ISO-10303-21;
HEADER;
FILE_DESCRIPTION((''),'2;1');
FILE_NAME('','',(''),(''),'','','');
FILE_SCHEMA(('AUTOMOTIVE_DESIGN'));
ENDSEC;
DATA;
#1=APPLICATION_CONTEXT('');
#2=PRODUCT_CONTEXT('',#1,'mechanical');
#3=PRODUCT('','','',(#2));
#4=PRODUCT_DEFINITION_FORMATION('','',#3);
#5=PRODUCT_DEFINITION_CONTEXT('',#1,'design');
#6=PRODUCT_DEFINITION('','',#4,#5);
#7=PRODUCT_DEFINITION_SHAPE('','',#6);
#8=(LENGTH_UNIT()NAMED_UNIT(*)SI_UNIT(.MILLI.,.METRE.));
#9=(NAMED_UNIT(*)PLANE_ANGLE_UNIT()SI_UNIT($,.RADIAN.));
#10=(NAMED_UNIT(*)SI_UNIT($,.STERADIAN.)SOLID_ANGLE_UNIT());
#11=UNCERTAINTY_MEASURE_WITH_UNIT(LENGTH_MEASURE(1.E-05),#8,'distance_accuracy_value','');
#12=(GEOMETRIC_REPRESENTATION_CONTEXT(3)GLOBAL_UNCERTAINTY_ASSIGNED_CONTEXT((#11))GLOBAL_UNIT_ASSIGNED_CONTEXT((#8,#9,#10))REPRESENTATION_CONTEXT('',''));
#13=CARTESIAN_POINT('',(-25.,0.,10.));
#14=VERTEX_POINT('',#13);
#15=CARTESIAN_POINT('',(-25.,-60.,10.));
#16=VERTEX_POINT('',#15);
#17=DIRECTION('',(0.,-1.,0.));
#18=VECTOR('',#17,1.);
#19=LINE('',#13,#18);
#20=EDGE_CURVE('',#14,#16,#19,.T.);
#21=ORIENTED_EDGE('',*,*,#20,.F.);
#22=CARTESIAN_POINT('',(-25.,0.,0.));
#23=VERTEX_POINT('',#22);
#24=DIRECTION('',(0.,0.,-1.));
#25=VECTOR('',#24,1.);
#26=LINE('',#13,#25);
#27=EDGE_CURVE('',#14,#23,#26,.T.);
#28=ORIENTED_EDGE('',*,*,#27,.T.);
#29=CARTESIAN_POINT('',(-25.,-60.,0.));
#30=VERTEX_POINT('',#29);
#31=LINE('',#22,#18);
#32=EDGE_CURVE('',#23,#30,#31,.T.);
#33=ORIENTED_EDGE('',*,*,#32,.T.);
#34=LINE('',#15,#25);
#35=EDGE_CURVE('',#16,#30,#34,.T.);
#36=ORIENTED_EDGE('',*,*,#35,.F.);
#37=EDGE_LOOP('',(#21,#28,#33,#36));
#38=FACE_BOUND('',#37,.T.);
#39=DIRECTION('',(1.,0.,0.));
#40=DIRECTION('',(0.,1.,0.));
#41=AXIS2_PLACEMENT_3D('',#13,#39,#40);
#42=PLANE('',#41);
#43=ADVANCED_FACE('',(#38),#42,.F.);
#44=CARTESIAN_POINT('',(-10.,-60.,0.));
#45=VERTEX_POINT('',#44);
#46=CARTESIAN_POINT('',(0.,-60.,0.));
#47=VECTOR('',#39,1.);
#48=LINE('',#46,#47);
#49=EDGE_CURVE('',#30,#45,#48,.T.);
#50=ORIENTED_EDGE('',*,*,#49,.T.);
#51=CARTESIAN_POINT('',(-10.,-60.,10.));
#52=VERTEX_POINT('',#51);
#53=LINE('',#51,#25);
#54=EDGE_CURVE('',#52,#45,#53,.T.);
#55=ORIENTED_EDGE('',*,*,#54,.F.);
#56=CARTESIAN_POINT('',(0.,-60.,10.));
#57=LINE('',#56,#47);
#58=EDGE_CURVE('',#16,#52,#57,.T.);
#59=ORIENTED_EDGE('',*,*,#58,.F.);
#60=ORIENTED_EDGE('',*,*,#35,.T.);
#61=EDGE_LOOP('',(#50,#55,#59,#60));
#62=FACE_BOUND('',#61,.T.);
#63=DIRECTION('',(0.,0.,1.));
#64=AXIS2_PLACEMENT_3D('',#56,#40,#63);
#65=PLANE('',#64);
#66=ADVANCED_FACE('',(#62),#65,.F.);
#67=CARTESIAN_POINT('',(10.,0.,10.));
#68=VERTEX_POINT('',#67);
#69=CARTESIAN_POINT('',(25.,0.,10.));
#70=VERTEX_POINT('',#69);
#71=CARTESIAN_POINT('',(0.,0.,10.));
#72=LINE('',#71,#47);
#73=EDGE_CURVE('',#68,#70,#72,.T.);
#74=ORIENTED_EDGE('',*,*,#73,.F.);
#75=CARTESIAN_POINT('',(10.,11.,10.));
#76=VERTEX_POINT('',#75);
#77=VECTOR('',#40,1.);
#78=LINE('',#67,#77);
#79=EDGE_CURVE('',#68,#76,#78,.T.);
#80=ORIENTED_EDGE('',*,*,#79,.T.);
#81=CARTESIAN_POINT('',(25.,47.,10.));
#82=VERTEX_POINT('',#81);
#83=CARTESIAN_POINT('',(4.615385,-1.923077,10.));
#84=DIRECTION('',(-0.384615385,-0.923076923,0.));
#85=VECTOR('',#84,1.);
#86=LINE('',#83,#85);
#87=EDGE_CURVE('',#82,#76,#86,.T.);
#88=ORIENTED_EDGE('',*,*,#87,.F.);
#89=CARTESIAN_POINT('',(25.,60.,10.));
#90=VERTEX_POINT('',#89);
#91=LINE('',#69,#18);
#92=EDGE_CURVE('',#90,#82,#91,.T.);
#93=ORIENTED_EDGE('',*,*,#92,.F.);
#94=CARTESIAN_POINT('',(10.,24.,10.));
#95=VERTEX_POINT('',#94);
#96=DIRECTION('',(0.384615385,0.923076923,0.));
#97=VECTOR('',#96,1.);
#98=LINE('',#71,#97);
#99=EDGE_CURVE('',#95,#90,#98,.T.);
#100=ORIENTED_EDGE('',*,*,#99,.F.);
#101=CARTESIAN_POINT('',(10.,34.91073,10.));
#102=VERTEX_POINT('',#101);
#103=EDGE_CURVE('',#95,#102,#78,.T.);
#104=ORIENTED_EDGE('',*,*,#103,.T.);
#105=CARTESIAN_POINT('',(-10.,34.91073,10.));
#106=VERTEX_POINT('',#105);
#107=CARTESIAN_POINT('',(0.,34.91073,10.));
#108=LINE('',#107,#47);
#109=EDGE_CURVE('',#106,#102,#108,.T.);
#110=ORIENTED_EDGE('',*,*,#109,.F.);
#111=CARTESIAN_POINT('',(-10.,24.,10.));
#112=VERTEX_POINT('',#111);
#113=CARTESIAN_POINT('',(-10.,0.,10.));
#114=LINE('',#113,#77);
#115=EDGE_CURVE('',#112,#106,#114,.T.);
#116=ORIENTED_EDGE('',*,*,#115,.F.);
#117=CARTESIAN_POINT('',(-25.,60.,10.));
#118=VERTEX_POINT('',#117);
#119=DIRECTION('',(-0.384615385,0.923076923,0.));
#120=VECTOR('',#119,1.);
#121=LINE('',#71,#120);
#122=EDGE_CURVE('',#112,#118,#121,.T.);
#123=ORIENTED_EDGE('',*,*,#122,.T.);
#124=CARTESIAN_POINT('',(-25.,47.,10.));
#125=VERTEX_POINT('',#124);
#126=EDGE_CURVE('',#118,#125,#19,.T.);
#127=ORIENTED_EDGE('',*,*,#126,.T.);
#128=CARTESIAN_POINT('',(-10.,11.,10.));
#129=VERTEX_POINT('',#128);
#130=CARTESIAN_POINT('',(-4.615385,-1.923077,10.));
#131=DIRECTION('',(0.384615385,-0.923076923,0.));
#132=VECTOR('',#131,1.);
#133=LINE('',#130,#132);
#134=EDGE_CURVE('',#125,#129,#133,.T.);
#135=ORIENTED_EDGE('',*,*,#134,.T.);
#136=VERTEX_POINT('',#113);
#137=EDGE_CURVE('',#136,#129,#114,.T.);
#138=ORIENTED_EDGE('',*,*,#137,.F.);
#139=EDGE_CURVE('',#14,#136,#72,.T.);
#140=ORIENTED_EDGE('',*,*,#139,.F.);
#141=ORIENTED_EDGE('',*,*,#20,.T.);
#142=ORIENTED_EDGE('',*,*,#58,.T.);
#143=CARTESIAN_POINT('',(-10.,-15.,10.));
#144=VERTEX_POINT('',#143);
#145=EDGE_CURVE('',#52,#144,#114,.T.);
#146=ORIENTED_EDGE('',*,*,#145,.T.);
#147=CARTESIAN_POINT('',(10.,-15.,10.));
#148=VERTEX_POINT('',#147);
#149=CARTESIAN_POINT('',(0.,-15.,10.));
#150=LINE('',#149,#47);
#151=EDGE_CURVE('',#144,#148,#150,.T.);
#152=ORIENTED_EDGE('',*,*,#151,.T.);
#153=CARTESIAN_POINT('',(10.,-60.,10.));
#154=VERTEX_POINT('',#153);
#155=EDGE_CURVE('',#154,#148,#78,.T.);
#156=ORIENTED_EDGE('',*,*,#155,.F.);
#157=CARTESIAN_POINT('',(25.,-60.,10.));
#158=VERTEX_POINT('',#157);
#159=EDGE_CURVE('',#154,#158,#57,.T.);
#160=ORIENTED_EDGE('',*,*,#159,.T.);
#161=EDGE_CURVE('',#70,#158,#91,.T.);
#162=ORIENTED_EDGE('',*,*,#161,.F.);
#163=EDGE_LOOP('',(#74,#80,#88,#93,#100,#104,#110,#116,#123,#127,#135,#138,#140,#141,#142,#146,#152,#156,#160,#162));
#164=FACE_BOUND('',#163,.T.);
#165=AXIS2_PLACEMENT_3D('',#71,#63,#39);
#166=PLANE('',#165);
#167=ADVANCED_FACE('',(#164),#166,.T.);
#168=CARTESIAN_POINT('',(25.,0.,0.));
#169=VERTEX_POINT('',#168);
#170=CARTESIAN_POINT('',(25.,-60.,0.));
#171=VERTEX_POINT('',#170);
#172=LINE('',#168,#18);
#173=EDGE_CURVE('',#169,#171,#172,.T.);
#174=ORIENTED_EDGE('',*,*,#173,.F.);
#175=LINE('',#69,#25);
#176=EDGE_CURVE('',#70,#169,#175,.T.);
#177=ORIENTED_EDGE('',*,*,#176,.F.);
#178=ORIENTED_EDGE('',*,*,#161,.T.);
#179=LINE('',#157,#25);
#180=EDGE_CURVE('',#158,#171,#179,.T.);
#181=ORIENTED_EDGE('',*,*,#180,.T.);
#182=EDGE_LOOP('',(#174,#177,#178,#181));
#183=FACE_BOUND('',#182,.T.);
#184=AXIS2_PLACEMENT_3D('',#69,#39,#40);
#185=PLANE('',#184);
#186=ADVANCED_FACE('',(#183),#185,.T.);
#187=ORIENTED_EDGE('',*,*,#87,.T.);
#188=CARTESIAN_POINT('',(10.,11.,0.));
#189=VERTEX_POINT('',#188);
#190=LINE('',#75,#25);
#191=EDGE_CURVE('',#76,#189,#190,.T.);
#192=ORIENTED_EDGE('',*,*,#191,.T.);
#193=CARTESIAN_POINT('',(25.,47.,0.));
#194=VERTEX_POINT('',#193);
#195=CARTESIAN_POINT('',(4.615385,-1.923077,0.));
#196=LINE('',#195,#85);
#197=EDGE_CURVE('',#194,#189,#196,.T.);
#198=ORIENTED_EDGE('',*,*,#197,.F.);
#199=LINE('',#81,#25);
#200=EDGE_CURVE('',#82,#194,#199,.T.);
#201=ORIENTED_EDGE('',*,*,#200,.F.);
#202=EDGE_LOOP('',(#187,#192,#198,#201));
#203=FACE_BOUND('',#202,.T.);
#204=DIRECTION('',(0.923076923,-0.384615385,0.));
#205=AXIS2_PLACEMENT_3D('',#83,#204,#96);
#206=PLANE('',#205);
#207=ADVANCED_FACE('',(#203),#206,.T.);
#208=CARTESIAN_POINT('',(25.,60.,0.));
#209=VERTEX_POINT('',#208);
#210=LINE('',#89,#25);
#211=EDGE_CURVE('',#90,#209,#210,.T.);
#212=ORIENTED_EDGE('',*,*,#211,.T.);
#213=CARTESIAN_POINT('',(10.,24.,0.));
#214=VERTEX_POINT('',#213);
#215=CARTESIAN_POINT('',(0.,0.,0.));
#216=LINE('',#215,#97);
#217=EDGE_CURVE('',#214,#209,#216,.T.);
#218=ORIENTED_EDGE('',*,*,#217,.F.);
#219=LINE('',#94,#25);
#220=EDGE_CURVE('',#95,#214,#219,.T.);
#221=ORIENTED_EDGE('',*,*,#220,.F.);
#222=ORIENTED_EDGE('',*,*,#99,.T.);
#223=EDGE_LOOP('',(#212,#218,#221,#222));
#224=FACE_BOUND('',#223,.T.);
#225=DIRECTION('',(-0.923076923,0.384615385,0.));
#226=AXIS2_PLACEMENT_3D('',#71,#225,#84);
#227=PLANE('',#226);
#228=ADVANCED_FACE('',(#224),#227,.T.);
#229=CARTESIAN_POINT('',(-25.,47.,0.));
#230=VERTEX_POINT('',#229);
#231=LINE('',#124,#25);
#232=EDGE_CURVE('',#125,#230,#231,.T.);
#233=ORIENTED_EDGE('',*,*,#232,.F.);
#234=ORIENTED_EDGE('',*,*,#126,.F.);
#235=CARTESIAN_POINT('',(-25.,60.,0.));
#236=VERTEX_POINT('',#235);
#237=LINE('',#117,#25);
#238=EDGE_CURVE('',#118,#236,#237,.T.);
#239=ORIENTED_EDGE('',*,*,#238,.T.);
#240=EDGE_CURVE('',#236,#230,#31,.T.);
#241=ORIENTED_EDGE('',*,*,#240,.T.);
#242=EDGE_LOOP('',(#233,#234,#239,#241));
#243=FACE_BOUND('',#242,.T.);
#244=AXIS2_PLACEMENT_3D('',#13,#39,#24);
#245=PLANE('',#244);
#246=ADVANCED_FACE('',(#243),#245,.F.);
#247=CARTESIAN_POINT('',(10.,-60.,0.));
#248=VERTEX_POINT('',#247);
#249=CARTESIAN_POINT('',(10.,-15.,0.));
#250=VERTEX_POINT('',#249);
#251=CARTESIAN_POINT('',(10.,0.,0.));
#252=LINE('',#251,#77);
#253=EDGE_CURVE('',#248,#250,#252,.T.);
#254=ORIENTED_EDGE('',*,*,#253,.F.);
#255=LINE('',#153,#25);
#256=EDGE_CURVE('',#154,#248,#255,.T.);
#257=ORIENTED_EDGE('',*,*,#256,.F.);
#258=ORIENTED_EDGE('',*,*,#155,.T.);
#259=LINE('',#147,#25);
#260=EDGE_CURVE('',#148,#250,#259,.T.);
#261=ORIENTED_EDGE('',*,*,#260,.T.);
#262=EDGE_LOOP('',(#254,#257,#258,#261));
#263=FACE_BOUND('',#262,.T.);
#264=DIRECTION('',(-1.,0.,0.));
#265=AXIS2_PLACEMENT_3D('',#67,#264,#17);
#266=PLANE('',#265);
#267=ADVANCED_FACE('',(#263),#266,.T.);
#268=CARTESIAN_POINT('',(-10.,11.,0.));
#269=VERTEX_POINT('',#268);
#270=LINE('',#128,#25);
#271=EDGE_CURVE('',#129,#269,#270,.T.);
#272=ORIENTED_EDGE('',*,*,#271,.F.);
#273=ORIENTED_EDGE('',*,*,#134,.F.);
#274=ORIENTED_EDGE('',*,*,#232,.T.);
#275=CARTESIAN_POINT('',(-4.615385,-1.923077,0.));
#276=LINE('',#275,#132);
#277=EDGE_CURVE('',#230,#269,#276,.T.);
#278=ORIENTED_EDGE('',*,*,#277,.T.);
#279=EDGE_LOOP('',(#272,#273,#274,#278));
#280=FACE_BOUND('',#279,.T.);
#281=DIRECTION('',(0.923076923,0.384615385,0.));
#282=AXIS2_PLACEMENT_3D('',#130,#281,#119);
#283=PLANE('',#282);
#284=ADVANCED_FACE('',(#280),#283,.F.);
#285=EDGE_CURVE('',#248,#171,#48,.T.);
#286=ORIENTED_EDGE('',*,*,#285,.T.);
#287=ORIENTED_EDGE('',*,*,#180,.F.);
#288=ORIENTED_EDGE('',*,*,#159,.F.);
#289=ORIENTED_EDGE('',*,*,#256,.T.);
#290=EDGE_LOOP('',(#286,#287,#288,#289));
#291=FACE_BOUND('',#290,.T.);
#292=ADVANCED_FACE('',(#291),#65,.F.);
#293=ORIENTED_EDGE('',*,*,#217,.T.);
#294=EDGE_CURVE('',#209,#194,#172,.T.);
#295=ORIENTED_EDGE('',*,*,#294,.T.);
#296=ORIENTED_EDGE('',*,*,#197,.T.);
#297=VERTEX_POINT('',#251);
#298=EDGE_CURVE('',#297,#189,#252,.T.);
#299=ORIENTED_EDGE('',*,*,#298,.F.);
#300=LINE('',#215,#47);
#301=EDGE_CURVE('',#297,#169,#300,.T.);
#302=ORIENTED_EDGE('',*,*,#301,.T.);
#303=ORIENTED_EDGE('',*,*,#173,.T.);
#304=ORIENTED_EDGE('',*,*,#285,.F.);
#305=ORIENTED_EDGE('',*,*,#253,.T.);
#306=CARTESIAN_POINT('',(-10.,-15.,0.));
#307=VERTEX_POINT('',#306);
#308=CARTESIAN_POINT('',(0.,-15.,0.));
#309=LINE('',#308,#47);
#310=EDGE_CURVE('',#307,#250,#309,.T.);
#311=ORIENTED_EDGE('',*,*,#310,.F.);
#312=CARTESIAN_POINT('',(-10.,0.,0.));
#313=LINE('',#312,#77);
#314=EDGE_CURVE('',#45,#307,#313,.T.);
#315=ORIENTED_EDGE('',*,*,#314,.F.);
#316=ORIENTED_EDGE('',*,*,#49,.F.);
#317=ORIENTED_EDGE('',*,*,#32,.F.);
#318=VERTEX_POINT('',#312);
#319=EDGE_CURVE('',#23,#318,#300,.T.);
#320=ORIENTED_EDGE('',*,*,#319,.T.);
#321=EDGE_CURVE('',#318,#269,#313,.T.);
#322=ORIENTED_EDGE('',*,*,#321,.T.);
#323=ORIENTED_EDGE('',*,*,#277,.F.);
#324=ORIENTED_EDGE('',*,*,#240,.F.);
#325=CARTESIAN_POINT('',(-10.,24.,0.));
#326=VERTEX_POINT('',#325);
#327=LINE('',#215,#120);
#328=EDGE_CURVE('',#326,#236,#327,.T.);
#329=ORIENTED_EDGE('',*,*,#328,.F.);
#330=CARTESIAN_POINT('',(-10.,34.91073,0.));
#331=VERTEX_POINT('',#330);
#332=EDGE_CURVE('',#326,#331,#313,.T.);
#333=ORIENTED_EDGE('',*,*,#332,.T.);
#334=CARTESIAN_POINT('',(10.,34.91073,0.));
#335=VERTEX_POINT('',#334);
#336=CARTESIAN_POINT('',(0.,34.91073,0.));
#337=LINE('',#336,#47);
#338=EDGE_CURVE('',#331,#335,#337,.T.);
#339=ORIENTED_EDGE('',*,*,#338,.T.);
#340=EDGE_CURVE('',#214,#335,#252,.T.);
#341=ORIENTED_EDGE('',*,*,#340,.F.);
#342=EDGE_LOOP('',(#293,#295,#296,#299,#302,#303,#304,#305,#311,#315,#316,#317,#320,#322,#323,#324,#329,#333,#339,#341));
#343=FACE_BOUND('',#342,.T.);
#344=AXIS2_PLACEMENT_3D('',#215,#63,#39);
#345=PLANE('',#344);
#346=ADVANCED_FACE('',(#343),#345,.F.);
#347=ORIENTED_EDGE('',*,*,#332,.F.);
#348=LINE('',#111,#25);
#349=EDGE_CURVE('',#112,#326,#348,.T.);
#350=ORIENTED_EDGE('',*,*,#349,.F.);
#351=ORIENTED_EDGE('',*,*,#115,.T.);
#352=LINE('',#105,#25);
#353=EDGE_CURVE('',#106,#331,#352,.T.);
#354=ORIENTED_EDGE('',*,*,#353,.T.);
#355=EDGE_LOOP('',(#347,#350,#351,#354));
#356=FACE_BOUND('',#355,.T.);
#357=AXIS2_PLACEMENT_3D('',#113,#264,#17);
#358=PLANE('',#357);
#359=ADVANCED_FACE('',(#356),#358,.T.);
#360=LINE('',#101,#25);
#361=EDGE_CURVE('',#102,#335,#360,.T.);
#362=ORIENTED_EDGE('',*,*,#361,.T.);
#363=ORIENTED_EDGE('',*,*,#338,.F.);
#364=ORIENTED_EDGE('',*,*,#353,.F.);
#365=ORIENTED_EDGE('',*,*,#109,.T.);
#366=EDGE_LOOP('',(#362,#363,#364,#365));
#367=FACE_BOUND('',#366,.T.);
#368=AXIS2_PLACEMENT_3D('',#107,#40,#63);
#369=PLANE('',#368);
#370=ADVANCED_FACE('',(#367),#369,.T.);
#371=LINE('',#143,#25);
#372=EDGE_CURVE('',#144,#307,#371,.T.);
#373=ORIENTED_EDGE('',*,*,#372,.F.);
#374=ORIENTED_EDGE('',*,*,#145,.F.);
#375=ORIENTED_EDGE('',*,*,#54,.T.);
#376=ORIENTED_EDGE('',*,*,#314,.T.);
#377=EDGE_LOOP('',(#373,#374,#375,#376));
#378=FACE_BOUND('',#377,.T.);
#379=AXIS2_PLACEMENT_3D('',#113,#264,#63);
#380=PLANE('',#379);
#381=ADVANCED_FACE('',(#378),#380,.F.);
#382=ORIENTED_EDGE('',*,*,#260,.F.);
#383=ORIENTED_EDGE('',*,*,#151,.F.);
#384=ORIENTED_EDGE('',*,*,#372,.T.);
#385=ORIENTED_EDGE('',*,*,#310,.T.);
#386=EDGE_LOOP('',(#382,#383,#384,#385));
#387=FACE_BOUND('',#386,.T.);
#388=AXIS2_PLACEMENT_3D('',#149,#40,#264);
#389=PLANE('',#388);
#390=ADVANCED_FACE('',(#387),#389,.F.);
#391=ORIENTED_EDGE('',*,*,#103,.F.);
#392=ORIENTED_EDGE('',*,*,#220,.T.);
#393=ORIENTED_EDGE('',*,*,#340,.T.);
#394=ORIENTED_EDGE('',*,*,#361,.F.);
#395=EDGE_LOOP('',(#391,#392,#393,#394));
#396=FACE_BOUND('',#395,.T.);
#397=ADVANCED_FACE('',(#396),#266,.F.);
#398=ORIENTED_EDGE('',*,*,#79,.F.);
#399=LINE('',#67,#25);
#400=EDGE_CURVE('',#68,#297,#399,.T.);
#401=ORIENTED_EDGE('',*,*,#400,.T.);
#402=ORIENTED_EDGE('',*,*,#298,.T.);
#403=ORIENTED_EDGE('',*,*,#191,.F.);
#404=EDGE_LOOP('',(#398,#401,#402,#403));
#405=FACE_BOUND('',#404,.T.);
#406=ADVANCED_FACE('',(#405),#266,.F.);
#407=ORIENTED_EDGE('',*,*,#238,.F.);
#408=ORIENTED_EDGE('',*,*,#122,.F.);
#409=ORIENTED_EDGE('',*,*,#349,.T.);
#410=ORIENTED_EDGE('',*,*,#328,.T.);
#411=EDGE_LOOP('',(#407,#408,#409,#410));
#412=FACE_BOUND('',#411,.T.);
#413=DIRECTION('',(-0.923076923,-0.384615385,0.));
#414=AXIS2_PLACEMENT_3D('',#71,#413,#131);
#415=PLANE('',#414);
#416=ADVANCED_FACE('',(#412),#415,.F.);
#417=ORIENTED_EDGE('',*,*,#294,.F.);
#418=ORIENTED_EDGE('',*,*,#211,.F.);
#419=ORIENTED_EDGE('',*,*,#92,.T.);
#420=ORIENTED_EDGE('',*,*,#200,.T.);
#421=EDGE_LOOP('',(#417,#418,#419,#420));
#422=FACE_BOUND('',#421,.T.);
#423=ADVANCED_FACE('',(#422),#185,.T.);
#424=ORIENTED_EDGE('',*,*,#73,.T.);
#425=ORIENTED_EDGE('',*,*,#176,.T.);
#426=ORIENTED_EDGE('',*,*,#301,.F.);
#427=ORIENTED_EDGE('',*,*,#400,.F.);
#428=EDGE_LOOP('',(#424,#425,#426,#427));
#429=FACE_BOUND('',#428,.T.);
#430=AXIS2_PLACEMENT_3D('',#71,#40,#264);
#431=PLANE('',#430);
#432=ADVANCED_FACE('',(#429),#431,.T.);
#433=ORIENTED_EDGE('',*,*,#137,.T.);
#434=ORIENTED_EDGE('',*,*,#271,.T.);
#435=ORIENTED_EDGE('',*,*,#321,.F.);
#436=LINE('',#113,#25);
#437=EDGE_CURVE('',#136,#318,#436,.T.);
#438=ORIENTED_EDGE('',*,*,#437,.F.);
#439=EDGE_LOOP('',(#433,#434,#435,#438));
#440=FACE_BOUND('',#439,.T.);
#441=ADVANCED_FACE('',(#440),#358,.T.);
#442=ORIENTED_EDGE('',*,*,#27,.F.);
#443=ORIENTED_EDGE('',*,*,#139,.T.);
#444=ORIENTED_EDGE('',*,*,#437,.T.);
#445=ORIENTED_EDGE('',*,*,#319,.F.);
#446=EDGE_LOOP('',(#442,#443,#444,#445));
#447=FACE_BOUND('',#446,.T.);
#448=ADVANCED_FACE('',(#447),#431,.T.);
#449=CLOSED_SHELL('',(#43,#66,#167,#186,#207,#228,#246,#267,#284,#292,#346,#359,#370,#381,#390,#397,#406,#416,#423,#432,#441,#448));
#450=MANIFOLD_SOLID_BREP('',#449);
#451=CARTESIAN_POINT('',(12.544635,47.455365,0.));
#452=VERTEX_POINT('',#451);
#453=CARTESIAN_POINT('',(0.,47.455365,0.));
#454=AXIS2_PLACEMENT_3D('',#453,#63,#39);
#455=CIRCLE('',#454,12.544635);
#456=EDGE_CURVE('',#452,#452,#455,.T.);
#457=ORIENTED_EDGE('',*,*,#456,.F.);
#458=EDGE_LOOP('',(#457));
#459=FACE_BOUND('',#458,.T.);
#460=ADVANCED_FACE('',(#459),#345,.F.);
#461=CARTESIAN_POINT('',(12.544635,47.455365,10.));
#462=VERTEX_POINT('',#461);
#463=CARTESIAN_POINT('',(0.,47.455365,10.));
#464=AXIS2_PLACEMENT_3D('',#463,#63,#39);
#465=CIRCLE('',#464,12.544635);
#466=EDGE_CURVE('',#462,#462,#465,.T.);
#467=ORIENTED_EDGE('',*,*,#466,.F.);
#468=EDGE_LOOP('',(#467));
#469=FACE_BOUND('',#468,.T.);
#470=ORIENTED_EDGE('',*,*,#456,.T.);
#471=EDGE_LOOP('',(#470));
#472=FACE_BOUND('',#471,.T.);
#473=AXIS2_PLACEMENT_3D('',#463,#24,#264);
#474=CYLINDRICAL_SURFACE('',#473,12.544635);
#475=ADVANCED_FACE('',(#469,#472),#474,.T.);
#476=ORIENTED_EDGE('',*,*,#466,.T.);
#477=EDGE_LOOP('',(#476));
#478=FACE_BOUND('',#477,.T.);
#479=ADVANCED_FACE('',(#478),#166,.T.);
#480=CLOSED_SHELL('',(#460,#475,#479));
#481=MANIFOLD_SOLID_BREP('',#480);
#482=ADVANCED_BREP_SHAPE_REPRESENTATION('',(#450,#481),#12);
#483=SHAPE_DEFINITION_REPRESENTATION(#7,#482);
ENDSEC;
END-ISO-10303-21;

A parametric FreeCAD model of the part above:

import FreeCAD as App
import Part
import Sketcher


def add_polygon(sketch, points):
    """Adds a closed chain of lines whose ends are joined by coincident constraints."""
    first, n = sketch.GeometryCount, len(points)
    for a, b in zip(points, points[1:] + points[:1]):
        sketch.addGeometry(Part.LineSegment(App.Vector(*a, 0), App.Vector(*b, 0)), False)
    for i in range(n):
        sketch.addConstraint(Sketcher.Constraint("Coincident", first + i, 2, first + (i + 1) % n, 1))

doc = App.newDocument("Part")
body = doc.addObject("PartDesign::Body", "Body")
body.AllowCompound = True

sketch1 = doc.addObject("Sketcher::SketchObject", "Sketch")
body.addObject(sketch1)
sketch1.AttachmentSupport = (doc.XY_Plane, [""])
sketch1.MapMode = "FlatFace"
sketch1.addGeometry(Part.Circle(App.Vector(0, 47, 0), App.Vector(0, 0, 1), 13), False)
add_polygon(sketch1, [(-10, 11), (-10, 0), (-25, 0), (-25, -60), (-10, -60), (-10, -15), (10, -15), (10, -60), (25, -60), (25, 0), (10, 0), (10, 11), (25, 47), (25, 60), (10, 24), (10, 35), (0, 35), (-10, 35), (-10, 24), (-25, 60), (-25, 47)])
sketch1.addConstraint([
    Sketcher.Constraint("Vertical", 1),
    Sketcher.Constraint("Horizontal", 2),
    Sketcher.Constraint("Vertical", 3),
    Sketcher.Constraint("Horizontal", 4),
    Sketcher.Constraint("Vertical", 5),
    Sketcher.Constraint("Horizontal", 6),
    Sketcher.Constraint("Vertical", 7),
    Sketcher.Constraint("Horizontal", 8),
    Sketcher.Constraint("Vertical", 9),
    Sketcher.Constraint("Horizontal", 10),
    Sketcher.Constraint("Vertical", 11),
    Sketcher.Constraint("Vertical", 13),
    Sketcher.Constraint("Vertical", 15),
    Sketcher.Constraint("Horizontal", 16),
    Sketcher.Constraint("Horizontal", 17),
    Sketcher.Constraint("Vertical", 18),
    Sketcher.Constraint("Vertical", 20),
    Sketcher.Constraint("Symmetric", 2, 2, 9, 2, -1, 1),
    Sketcher.Constraint("Symmetric", 3, 2, 13, 2, -1, 1),
    Sketcher.Constraint("Symmetric", 8, 2, 19, 2, -1, 1),
    Sketcher.Constraint("Symmetric", 4, 2, 7, 2, -2),
    Sketcher.Constraint("Symmetric", 1, 2, 10, 2, -2),
    Sketcher.Constraint("Symmetric", 14, 2, 18, 2, -2),
    Sketcher.Constraint("PointOnObject", 0, 3, -2),
    Sketcher.Constraint("PointOnObject", 16, 2, -2),
    Sketcher.Constraint("Parallel", 12, 14),
    Sketcher.Constraint("Parallel", 19, 21),
    Sketcher.Constraint("Horizontal", 12, 2, 20, 2),
    Sketcher.Constraint("Vertical", 1, 2, 4, 2),
    Sketcher.Constraint("Vertical", 11, 2, 14, 2),
    Sketcher.Constraint("DistanceX", 2, 2, 2, 1, 15.0),
    Sketcher.Constraint("DistanceX", 6, 1, 6, 2, 20.0),
    Sketcher.Constraint("DistanceY", 1, 2, 1, 1, 11.0),
    Sketcher.Constraint("DistanceY", 3, 2, 3, 1, 60.0),
    Sketcher.Constraint("DistanceY", 5, 1, 5, 2, 45.0),
    Sketcher.Constraint("DistanceY", 13, 1, 13, 2, 13.0),
    Sketcher.Constraint("Diameter", 0, 25.08927),
    Sketcher.Constraint("DistanceY", 15, 1, 15, 2, 10.91073),
    Sketcher.Constraint("DistanceY", -1, 1, 0, 3, 47.455365),
])
pad1 = doc.addObject("PartDesign::Pad", "Pad")
body.addObject(pad1)
pad1.Profile = sketch1
pad1.Length = 10

doc.recompute()
